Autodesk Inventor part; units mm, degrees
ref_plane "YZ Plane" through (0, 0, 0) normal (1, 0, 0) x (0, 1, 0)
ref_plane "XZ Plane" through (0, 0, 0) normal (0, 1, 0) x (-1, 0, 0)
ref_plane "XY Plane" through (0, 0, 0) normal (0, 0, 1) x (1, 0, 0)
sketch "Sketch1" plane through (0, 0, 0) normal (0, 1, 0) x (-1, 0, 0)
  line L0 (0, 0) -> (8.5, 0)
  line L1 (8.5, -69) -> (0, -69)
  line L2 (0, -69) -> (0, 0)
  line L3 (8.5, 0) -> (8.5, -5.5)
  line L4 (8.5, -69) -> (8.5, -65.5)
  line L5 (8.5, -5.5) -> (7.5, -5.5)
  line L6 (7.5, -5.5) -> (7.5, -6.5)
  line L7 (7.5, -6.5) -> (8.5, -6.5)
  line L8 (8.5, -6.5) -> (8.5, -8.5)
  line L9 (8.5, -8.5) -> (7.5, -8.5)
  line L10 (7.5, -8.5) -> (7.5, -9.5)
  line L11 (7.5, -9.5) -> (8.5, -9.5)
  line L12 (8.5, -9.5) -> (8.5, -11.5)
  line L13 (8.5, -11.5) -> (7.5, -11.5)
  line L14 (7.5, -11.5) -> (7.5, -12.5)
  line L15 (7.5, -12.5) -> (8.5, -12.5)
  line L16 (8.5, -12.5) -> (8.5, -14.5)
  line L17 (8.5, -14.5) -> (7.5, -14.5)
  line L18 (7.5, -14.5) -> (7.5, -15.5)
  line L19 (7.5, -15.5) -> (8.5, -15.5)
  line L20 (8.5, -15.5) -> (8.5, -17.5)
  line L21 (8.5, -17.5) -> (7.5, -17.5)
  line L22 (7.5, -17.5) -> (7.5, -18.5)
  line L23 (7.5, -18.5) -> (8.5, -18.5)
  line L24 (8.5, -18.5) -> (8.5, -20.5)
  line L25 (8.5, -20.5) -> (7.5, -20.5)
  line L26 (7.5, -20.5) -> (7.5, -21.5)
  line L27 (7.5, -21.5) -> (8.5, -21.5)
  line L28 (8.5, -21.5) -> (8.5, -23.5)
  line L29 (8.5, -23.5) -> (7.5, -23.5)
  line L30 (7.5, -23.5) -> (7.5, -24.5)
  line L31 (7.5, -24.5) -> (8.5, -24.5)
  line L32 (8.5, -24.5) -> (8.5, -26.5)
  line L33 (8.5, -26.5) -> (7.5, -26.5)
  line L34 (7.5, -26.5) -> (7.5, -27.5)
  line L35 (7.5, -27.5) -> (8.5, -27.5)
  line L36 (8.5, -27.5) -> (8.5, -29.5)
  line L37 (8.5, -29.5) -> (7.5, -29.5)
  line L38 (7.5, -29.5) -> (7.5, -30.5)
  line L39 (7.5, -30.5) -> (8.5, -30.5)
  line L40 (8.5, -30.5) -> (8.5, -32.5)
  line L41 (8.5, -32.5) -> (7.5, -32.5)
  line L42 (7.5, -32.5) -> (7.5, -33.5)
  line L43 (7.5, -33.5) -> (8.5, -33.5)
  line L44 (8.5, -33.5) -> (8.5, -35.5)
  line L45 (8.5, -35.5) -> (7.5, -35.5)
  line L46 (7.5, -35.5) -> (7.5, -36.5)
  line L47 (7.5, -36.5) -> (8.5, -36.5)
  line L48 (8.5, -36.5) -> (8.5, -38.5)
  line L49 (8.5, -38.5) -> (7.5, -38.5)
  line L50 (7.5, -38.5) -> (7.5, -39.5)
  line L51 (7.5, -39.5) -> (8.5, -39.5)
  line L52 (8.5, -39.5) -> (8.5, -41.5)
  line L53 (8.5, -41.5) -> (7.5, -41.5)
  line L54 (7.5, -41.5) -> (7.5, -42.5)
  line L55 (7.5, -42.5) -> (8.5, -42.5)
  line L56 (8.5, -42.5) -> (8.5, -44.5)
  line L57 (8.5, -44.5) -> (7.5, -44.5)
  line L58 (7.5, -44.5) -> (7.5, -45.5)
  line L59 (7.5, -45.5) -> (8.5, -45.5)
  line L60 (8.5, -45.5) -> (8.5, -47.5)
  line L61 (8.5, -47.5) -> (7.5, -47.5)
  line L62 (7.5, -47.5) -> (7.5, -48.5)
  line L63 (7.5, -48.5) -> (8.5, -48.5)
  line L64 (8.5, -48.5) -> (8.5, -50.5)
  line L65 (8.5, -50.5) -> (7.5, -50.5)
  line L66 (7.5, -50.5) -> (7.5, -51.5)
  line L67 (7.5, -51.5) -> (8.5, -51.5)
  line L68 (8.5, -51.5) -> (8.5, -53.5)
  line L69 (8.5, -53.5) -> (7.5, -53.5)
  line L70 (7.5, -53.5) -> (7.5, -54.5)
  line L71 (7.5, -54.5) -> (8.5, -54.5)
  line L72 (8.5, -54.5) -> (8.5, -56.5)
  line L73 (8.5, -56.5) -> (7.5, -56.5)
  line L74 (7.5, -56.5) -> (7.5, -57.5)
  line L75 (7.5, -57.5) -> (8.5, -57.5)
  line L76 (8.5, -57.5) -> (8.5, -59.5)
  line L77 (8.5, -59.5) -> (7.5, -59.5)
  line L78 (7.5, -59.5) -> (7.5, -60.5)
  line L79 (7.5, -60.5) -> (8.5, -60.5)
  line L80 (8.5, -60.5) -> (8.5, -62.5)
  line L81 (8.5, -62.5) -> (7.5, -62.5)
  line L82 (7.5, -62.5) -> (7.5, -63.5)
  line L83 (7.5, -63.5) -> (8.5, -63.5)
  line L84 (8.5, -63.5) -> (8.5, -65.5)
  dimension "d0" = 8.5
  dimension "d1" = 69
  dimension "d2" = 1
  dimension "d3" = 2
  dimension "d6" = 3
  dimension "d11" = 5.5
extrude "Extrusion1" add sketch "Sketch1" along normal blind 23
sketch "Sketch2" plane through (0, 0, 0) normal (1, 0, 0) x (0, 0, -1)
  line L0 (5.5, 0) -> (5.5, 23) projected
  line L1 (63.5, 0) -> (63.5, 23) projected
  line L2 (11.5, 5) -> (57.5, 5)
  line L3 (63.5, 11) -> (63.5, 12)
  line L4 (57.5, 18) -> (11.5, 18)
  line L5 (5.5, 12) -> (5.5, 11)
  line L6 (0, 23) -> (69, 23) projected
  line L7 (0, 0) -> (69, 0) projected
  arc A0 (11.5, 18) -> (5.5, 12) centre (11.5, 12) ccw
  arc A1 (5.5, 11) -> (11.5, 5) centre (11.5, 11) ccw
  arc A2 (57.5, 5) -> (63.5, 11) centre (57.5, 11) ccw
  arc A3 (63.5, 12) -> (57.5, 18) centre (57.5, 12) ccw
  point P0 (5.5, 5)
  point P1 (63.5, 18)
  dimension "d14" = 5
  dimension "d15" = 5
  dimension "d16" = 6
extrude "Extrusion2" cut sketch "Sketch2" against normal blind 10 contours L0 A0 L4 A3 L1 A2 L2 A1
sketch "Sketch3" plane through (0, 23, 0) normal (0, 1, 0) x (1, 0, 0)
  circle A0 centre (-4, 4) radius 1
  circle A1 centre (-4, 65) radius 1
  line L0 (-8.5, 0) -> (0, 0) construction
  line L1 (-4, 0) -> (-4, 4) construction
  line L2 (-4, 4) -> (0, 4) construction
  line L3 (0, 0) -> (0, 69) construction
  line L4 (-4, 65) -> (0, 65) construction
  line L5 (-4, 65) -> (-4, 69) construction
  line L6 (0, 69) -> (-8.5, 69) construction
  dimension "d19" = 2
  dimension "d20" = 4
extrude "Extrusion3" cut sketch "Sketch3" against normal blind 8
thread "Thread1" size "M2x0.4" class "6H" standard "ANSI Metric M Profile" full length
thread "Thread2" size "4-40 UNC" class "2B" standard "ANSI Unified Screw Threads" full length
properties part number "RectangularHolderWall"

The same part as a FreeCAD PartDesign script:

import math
import FreeCAD as App
import Part
import Sketcher
Q = App.Units.Quantity

doc = App.newDocument("Part")
params = doc.addObject("Spreadsheet::Sheet", "Params")
for row, (alias, value) in enumerate([
    ("sketch1_width", "1 mm"),
    ("sketch1_height", "69 mm"),
    ("sketch1_height2", "2 mm"),
    ("sketch1_width2", "8.5 mm"),
    ("pad1_length", "23 mm"),
    ("sketch2_radius", "6 mm"),
    ("sketch2_width", "1 mm"),
    ("sketch2_height", "46 mm"),
    ("pocket1_length", "10 mm"),
    ("sketch3_diameter", "2 mm"),
    ("pocket2_length", "8 mm"),
], start=1):
    params.set(f"A{row}", alias)
    params.set(f"B{row}", "=" + value)
    params.setAlias(f"B{row}", alias)

body = doc.addObject("PartDesign::Body", "Body")

sketch1 = doc.addObject("Sketcher::SketchObject", "Sketch")
body.addObject(sketch1)
sketch1.AttachmentSupport = (doc.XZ_Plane, [""])
sketch1.MapMode = "FlatFace"
sketch1.addGeometry([
    Part.LineSegment(App.Vector(-8.5, 0, 0), App.Vector(0, 0, 0)),
    Part.LineSegment(App.Vector(0, 0, 0), App.Vector(0, -69, 0)),
    Part.LineSegment(App.Vector(0, -69, 0), App.Vector(-8.5, -69, 0)),
    Part.LineSegment(App.Vector(-8.5, -69, 0), App.Vector(-8.5, -63.5, 0)),
    Part.LineSegment(App.Vector(-8.5, -63.5, 0), App.Vector(-7.5, -63.5, 0)),
    Part.LineSegment(App.Vector(-7.5, -63.5, 0), App.Vector(-7.5, -62.5, 0)),
    Part.LineSegment(App.Vector(-7.5, -62.5, 0), App.Vector(-8.5, -62.5, 0)),
    Part.LineSegment(App.Vector(-8.5, -62.5, 0), App.Vector(-8.5, -60.5, 0)),
    Part.LineSegment(App.Vector(-8.5, -60.5, 0), App.Vector(-7.5, -60.5, 0)),
    Part.LineSegment(App.Vector(-7.5, -60.5, 0), App.Vector(-7.5, -59.5, 0)),
    Part.LineSegment(App.Vector(-7.5, -59.5, 0), App.Vector(-8.5, -59.5, 0)),
    Part.LineSegment(App.Vector(-8.5, -59.5, 0), App.Vector(-8.5, -57.5, 0)),
    Part.LineSegment(App.Vector(-8.5, -57.5, 0), App.Vector(-7.5, -57.5, 0)),
    Part.LineSegment(App.Vector(-7.5, -57.5, 0), App.Vector(-7.5, -56.5, 0)),
    Part.LineSegment(App.Vector(-7.5, -56.5, 0), App.Vector(-8.5, -56.5, 0)),
    Part.LineSegment(App.Vector(-8.5, -56.5, 0), App.Vector(-8.5, -54.5, 0)),
    Part.LineSegment(App.Vector(-8.5, -54.5, 0), App.Vector(-7.5, -54.5, 0)),
    Part.LineSegment(App.Vector(-7.5, -54.5, 0), App.Vector(-7.5, -53.5, 0)),
    Part.LineSegment(App.Vector(-7.5, -53.5, 0), App.Vector(-8.5, -53.5, 0)),
    Part.LineSegment(App.Vector(-8.5, -53.5, 0), App.Vector(-8.5, -51.5, 0)),
    Part.LineSegment(App.Vector(-8.5, -51.5, 0), App.Vector(-7.5, -51.5, 0)),
    Part.LineSegment(App.Vector(-7.5, -51.5, 0), App.Vector(-7.5, -50.5, 0)),
    Part.LineSegment(App.Vector(-7.5, -50.5, 0), App.Vector(-8.5, -50.5, 0)),
    Part.LineSegment(App.Vector(-8.5, -50.5, 0), App.Vector(-8.5, -48.5, 0)),
    Part.LineSegment(App.Vector(-8.5, -48.5, 0), App.Vector(-7.5, -48.5, 0)),
    Part.LineSegment(App.Vector(-7.5, -48.5, 0), App.Vector(-7.5, -47.5, 0)),
    Part.LineSegment(App.Vector(-7.5, -47.5, 0), App.Vector(-8.5, -47.5, 0)),
    Part.LineSegment(App.Vector(-8.5, -47.5, 0), App.Vector(-8.5, -45.5, 0)),
    Part.LineSegment(App.Vector(-8.5, -45.5, 0), App.Vector(-7.5, -45.5, 0)),
    Part.LineSegment(App.Vector(-7.5, -45.5, 0), App.Vector(-7.5, -44.5, 0)),
    Part.LineSegment(App.Vector(-7.5, -44.5, 0), App.Vector(-8.5, -44.5, 0)),
    Part.LineSegment(App.Vector(-8.5, -44.5, 0), App.Vector(-8.5, -42.5, 0)),
    Part.LineSegment(App.Vector(-8.5, -42.5, 0), App.Vector(-7.5, -42.5, 0)),
    Part.LineSegment(App.Vector(-7.5, -42.5, 0), App.Vector(-7.5, -41.5, 0)),
    Part.LineSegment(App.Vector(-7.5, -41.5, 0), App.Vector(-8.5, -41.5, 0)),
    Part.LineSegment(App.Vector(-8.5, -41.5, 0), App.Vector(-8.5, -39.5, 0)),
    Part.LineSegment(App.Vector(-8.5, -39.5, 0), App.Vector(-7.5, -39.5, 0)),
    Part.LineSegment(App.Vector(-7.5, -39.5, 0), App.Vector(-7.5, -38.5, 0)),
    Part.LineSegment(App.Vector(-7.5, -38.5, 0), App.Vector(-8.5, -38.5, 0)),
    Part.LineSegment(App.Vector(-8.5, -38.5, 0), App.Vector(-8.5, -36.5, 0)),
    Part.LineSegment(App.Vector(-8.5, -36.5, 0), App.Vector(-7.5, -36.5, 0)),
    Part.LineSegment(App.Vector(-7.5, -36.5, 0), App.Vector(-7.5, -35.5, 0)),
    Part.LineSegment(App.Vector(-7.5, -35.5, 0), App.Vector(-8.5, -35.5, 0)),
    Part.LineSegment(App.Vector(-8.5, -35.5, 0), App.Vector(-8.5, -33.5, 0)),
    Part.LineSegment(App.Vector(-8.5, -33.5, 0), App.Vector(-7.5, -33.5, 0)),
    Part.LineSegment(App.Vector(-7.5, -33.5, 0), App.Vector(-7.5, -32.5, 0)),
    Part.LineSegment(App.Vector(-7.5, -32.5, 0), App.Vector(-8.5, -32.5, 0)),
    Part.LineSegment(App.Vector(-8.5, -32.5, 0), App.Vector(-8.5, -30.5, 0)),
    Part.LineSegment(App.Vector(-8.5, -30.5, 0), App.Vector(-7.5, -30.5, 0)),
    Part.LineSegment(App.Vector(-7.5, -30.5, 0), App.Vector(-7.5, -29.5, 0)),
    Part.LineSegment(App.Vector(-7.5, -29.5, 0), App.Vector(-8.5, -29.5, 0)),
    Part.LineSegment(App.Vector(-8.5, -29.5, 0), App.Vector(-8.5, -27.5, 0)),
    Part.LineSegment(App.Vector(-8.5, -27.5, 0), App.Vector(-7.5, -27.5, 0)),
    Part.LineSegment(App.Vector(-7.5, -27.5, 0), App.Vector(-7.5, -26.5, 0)),
    Part.LineSegment(App.Vector(-7.5, -26.5, 0), App.Vector(-8.5, -26.5, 0)),
    Part.LineSegment(App.Vector(-8.5, -26.5, 0), App.Vector(-8.5, -24.5, 0)),
    Part.LineSegment(App.Vector(-8.5, -24.5, 0), App.Vector(-7.5, -24.5, 0)),
    Part.LineSegment(App.Vector(-7.5, -24.5, 0), App.Vector(-7.5, -23.5, 0)),
    Part.LineSegment(App.Vector(-7.5, -23.5, 0), App.Vector(-8.5, -23.5, 0)),
    Part.LineSegment(App.Vector(-8.5, -23.5, 0), App.Vector(-8.5, -21.5, 0)),
    Part.LineSegment(App.Vector(-8.5, -21.5, 0), App.Vector(-7.5, -21.5, 0)),
    Part.LineSegment(App.Vector(-7.5, -21.5, 0), App.Vector(-7.5, -20.5, 0)),
    Part.LineSegment(App.Vector(-7.5, -20.5, 0), App.Vector(-8.5, -20.5, 0)),
    Part.LineSegment(App.Vector(-8.5, -20.5, 0), App.Vector(-8.5, -18.5, 0)),
    Part.LineSegment(App.Vector(-8.5, -18.5, 0), App.Vector(-7.5, -18.5, 0)),
    Part.LineSegment(App.Vector(-7.5, -18.5, 0), App.Vector(-7.5, -17.5, 0)),
    Part.LineSegment(App.Vector(-7.5, -17.5, 0), App.Vector(-8.5, -17.5, 0)),
    Part.LineSegment(App.Vector(-8.5, -17.5, 0), App.Vector(-8.5, -15.5, 0)),
    Part.LineSegment(App.Vector(-8.5, -15.5, 0), App.Vector(-7.5, -15.5, 0)),
    Part.LineSegment(App.Vector(-7.5, -15.5, 0), App.Vector(-7.5, -14.5, 0)),
    Part.LineSegment(App.Vector(-7.5, -14.5, 0), App.Vector(-8.5, -14.5, 0)),
    Part.LineSegment(App.Vector(-8.5, -14.5, 0), App.Vector(-8.5, -12.5, 0)),
    Part.LineSegment(App.Vector(-8.5, -12.5, 0), App.Vector(-7.5, -12.5, 0)),
    Part.LineSegment(App.Vector(-7.5, -12.5, 0), App.Vector(-7.5, -11.5, 0)),
    Part.LineSegment(App.Vector(-7.5, -11.5, 0), App.Vector(-8.5, -11.5, 0)),
    Part.LineSegment(App.Vector(-8.5, -11.5, 0), App.Vector(-8.5, -9.5, 0)),
    Part.LineSegment(App.Vector(-8.5, -9.5, 0), App.Vector(-7.5, -9.5, 0)),
    Part.LineSegment(App.Vector(-7.5, -9.5, 0), App.Vector(-7.5, -8.5, 0)),
    Part.LineSegment(App.Vector(-7.5, -8.5, 0), App.Vector(-8.5, -8.5, 0)),
    Part.LineSegment(App.Vector(-8.5, -8.5, 0), App.Vector(-8.5, -6.5, 0)),
    Part.LineSegment(App.Vector(-8.5, -6.5, 0), App.Vector(-7.5, -6.5, 0)),
    Part.LineSegment(App.Vector(-7.5, -6.5, 0), App.Vector(-7.5, -5.5, 0)),
    Part.LineSegment(App.Vector(-7.5, -5.5, 0), App.Vector(-8.5, -5.5, 0)),
    Part.LineSegment(App.Vector(-8.5, -5.5, 0), App.Vector(-8.5, 0, 0)),
], False)
sketch1.addConstraint([
    Sketcher.Constraint("Coincident", 0, 2, 1, 1),
    Sketcher.Constraint("Coincident", 1, 2, 2, 1),
    Sketcher.Constraint("Coincident", 2, 2, 3, 1),
    Sketcher.Constraint("Coincident", 3, 2, 4, 1),
    Sketcher.Constraint("Coincident", 4, 2, 5, 1),
    Sketcher.Constraint("Coincident", 5, 2, 6, 1),
    Sketcher.Constraint("Coincident", 6, 2, 7, 1),
    Sketcher.Constraint("Coincident", 7, 2, 8, 1),
    Sketcher.Constraint("Coincident", 8, 2, 9, 1),
    Sketcher.Constraint("Coincident", 9, 2, 10, 1),
    Sketcher.Constraint("Coincident", 10, 2, 11, 1),
    Sketcher.Constraint("Coincident", 11, 2, 12, 1),
    Sketcher.Constraint("Coincident", 12, 2, 13, 1),
    Sketcher.Constraint("Coincident", 13, 2, 14, 1),
    Sketcher.Constraint("Coincident", 14, 2, 15, 1),
    Sketcher.Constraint("Coincident", 15, 2, 16, 1),
    Sketcher.Constraint("Coincident", 16, 2, 17, 1),
    Sketcher.Constraint("Coincident", 17, 2, 18, 1),
    Sketcher.Constraint("Coincident", 18, 2, 19, 1),
    Sketcher.Constraint("Coincident", 19, 2, 20, 1),
    Sketcher.Constraint("Coincident", 20, 2, 21, 1),
    Sketcher.Constraint("Coincident", 21, 2, 22, 1),
    Sketcher.Constraint("Coincident", 22, 2, 23, 1),
    Sketcher.Constraint("Coincident", 23, 2, 24, 1),
    Sketcher.Constraint("Coincident", 24, 2, 25, 1),
    Sketcher.Constraint("Coincident", 25, 2, 26, 1),
    Sketcher.Constraint("Coincident", 26, 2, 27, 1),
    Sketcher.Constraint("Coincident", 27, 2, 28, 1),
    Sketcher.Constraint("Coincident", 28, 2, 29, 1),
    Sketcher.Constraint("Coincident", 29, 2, 30, 1),
    Sketcher.Constraint("Coincident", 30, 2, 31, 1),
    Sketcher.Constraint("Coincident", 31, 2, 32, 1),
    Sketcher.Constraint("Coincident", 32, 2, 33, 1),
    Sketcher.Constraint("Coincident", 33, 2, 34, 1),
    Sketcher.Constraint("Coincident", 34, 2, 35, 1),
    Sketcher.Constraint("Coincident", 35, 2, 36, 1),
    Sketcher.Constraint("Coincident", 36, 2, 37, 1),
    Sketcher.Constraint("Coincident", 37, 2, 38, 1),
    Sketcher.Constraint("Coincident", 38, 2, 39, 1),
    Sketcher.Constraint("Coincident", 39, 2, 40, 1),
    Sketcher.Constraint("Coincident", 40, 2, 41, 1),
    Sketcher.Constraint("Coincident", 41, 2, 42, 1),
    Sketcher.Constraint("Coincident", 42, 2, 43, 1),
    Sketcher.Constraint("Coincident", 43, 2, 44, 1),
    Sketcher.Constraint("Coincident", 44, 2, 45, 1),
    Sketcher.Constraint("Coincident", 45, 2, 46, 1),
    Sketcher.Constraint("Coincident", 46, 2, 47, 1),
    Sketcher.Constraint("Coincident", 47, 2, 48, 1),
    Sketcher.Constraint("Coincident", 48, 2, 49, 1),
    Sketcher.Constraint("Coincident", 49, 2, 50, 1),
    Sketcher.Constraint("Coincident", 50, 2, 51, 1),
    Sketcher.Constraint("Coincident", 51, 2, 52, 1),
    Sketcher.Constraint("Coincident", 52, 2, 53, 1),
    Sketcher.Constraint("Coincident", 53, 2, 54, 1),
    Sketcher.Constraint("Coincident", 54, 2, 55, 1),
    Sketcher.Constraint("Coincident", 55, 2, 56, 1),
    Sketcher.Constraint("Coincident", 56, 2, 57, 1),
    Sketcher.Constraint("Coincident", 57, 2, 58, 1),
    Sketcher.Constraint("Coincident", 58, 2, 59, 1),
    Sketcher.Constraint("Coincident", 59, 2, 60, 1),
    Sketcher.Constraint("Coincident", 60, 2, 61, 1),
    Sketcher.Constraint("Coincident", 61, 2, 62, 1),
    Sketcher.Constraint("Coincident", 62, 2, 63, 1),
    Sketcher.Constraint("Coincident", 63, 2, 64, 1),
    Sketcher.Constraint("Coincident", 64, 2, 65, 1),
    Sketcher.Constraint("Coincident", 65, 2, 66, 1),
    Sketcher.Constraint("Coincident", 66, 2, 67, 1),
    Sketcher.Constraint("Coincident", 67, 2, 68, 1),
    Sketcher.Constraint("Coincident", 68, 2, 69, 1),
    Sketcher.Constraint("Coincident", 69, 2, 70, 1),
    Sketcher.Constraint("Coincident", 70, 2, 71, 1),
    Sketcher.Constraint("Coincident", 71, 2, 72, 1),
    Sketcher.Constraint("Coincident", 72, 2, 73, 1),
    Sketcher.Constraint("Coincident", 73, 2, 74, 1),
    Sketcher.Constraint("Coincident", 74, 2, 75, 1),
    Sketcher.Constraint("Coincident", 75, 2, 76, 1),
    Sketcher.Constraint("Coincident", 76, 2, 77, 1),
    Sketcher.Constraint("Coincident", 77, 2, 78, 1),
    Sketcher.Constraint("Coincident", 78, 2, 79, 1),
    Sketcher.Constraint("Coincident", 79, 2, 80, 1),
    Sketcher.Constraint("Coincident", 80, 2, 81, 1),
    Sketcher.Constraint("Coincident", 81, 2, 82, 1),
    Sketcher.Constraint("Coincident", 82, 2, 83, 1),
    Sketcher.Constraint("Coincident", 83, 2, 0, 1),
    Sketcher.Constraint("Horizontal", 0),
    Sketcher.Constraint("Vertical", 1),
    Sketcher.Constraint("Horizontal", 2),
    Sketcher.Constraint("Vertical", 3),
    Sketcher.Constraint("Horizontal", 4),
    Sketcher.Constraint("Vertical", 5),
    Sketcher.Constraint("Horizontal", 6),
    Sketcher.Constraint("Vertical", 7),
    Sketcher.Constraint("Horizontal", 8),
    Sketcher.Constraint("Vertical", 9),
    Sketcher.Constraint("Horizontal", 10),
    Sketcher.Constraint("Vertical", 11),
    Sketcher.Constraint("Horizontal", 12),
    Sketcher.Constraint("Vertical", 13),
    Sketcher.Constraint("Horizontal", 14),
    Sketcher.Constraint("Vertical", 15),
    Sketcher.Constraint("Horizontal", 16),
    Sketcher.Constraint("Vertical", 17),
    Sketcher.Constraint("Horizontal", 18),
    Sketcher.Constraint("Vertical", 19),
    Sketcher.Constraint("Horizontal", 20),
    Sketcher.Constraint("Vertical", 21),
    Sketcher.Constraint("Horizontal", 22),
    Sketcher.Constraint("Vertical", 23),
    Sketcher.Constraint("Horizontal", 24),
    Sketcher.Constraint("Vertical", 25),
    Sketcher.Constraint("Horizontal", 26),
    Sketcher.Constraint("Vertical", 27),
    Sketcher.Constraint("Horizontal", 28),
    Sketcher.Constraint("Vertical", 29),
    Sketcher.Constraint("Horizontal", 30),
    Sketcher.Constraint("Vertical", 31),
    Sketcher.Constraint("Horizontal", 32),
    Sketcher.Constraint("Vertical", 33),
    Sketcher.Constraint("Horizontal", 34),
    Sketcher.Constraint("Vertical", 35),
    Sketcher.Constraint("Horizontal", 36),
    Sketcher.Constraint("Vertical", 37),
    Sketcher.Constraint("Horizontal", 38),
    Sketcher.Constraint("Vertical", 39),
    Sketcher.Constraint("Horizontal", 40),
    Sketcher.Constraint("Vertical", 41),
    Sketcher.Constraint("Horizontal", 42),
    Sketcher.Constraint("Vertical", 43),
    Sketcher.Constraint("Horizontal", 44),
    Sketcher.Constraint("Vertical", 45),
    Sketcher.Constraint("Horizontal", 46),
    Sketcher.Constraint("Vertical", 47),
    Sketcher.Constraint("Horizontal", 48),
    Sketcher.Constraint("Vertical", 49),
    Sketcher.Constraint("Horizontal", 50),
    Sketcher.Constraint("Vertical", 51),
    Sketcher.Constraint("Horizontal", 52),
    Sketcher.Constraint("Vertical", 53),
    Sketcher.Constraint("Horizontal", 54),
    Sketcher.Constraint("Vertical", 55),
    Sketcher.Constraint("Horizontal", 56),
    Sketcher.Constraint("Vertical", 57),
    Sketcher.Constraint("Horizontal", 58),
    Sketcher.Constraint("Vertical", 59),
    Sketcher.Constraint("Horizontal", 60),
    Sketcher.Constraint("Vertical", 61),
    Sketcher.Constraint("Horizontal", 62),
    Sketcher.Constraint("Vertical", 63),
    Sketcher.Constraint("Horizontal", 64),
    Sketcher.Constraint("Vertical", 65),
    Sketcher.Constraint("Horizontal", 66),
    Sketcher.Constraint("Vertical", 67),
    Sketcher.Constraint("Horizontal", 68),
    Sketcher.Constraint("Vertical", 69),
    Sketcher.Constraint("Horizontal", 70),
    Sketcher.Constraint("Vertical", 71),
    Sketcher.Constraint("Horizontal", 72),
    Sketcher.Constraint("Vertical", 73),
    Sketcher.Constraint("Horizontal", 74),
    Sketcher.Constraint("Vertical", 75),
    Sketcher.Constraint("Horizontal", 76),
    Sketcher.Constraint("Vertical", 77),
    Sketcher.Constraint("Horizontal", 78),
    Sketcher.Constraint("Vertical", 79),
    Sketcher.Constraint("Horizontal", 80),
    Sketcher.Constraint("Vertical", 81),
    Sketcher.Constraint("Horizontal", 82),
    Sketcher.Constraint("Vertical", 83),
    Sketcher.Constraint("Coincident", 0, 2, -1, 1),
    Sketcher.Constraint("Vertical", 3, 2, 6, 2),
    Sketcher.Constraint("Vertical", 5, 2, 8, 2),
    Sketcher.Constraint("Vertical", 7, 2, 10, 2),
    Sketcher.Constraint("Vertical", 9, 2, 12, 2),
    Sketcher.Constraint("Vertical", 11, 2, 14, 2),
    Sketcher.Constraint("Vertical", 13, 2, 16, 2),
    Sketcher.Constraint("Vertical", 15, 2, 18, 2),
    Sketcher.Constraint("Vertical", 17, 2, 20, 2),
    Sketcher.Constraint("Vertical", 19, 2, 22, 2),
    Sketcher.Constraint("Vertical", 21, 2, 24, 2),
    Sketcher.Constraint("Vertical", 23, 2, 26, 2),
    Sketcher.Constraint("Vertical", 25, 2, 28, 2),
    Sketcher.Constraint("Vertical", 27, 2, 30, 2),
    Sketcher.Constraint("Vertical", 29, 2, 32, 2),
    Sketcher.Constraint("Vertical", 31, 2, 34, 2),
    Sketcher.Constraint("Vertical", 33, 2, 36, 2),
    Sketcher.Constraint("Vertical", 35, 2, 38, 2),
    Sketcher.Constraint("Vertical", 37, 2, 40, 2),
    Sketcher.Constraint("Vertical", 39, 2, 42, 2),
    Sketcher.Constraint("Vertical", 41, 2, 44, 2),
    Sketcher.Constraint("Vertical", 43, 2, 46, 2),
    Sketcher.Constraint("Vertical", 45, 2, 48, 2),
    Sketcher.Constraint("Vertical", 47, 2, 50, 2),
    Sketcher.Constraint("Vertical", 49, 2, 52, 2),
    Sketcher.Constraint("Vertical", 51, 2, 54, 2),
    Sketcher.Constraint("Vertical", 53, 2, 56, 2),
    Sketcher.Constraint("Vertical", 55, 2, 58, 2),
    Sketcher.Constraint("Vertical", 57, 2, 60, 2),
    Sketcher.Constraint("Vertical", 59, 2, 62, 2),
    Sketcher.Constraint("Vertical", 61, 2, 64, 2),
    Sketcher.Constraint("Vertical", 63, 2, 66, 2),
    Sketcher.Constraint("Vertical", 65, 2, 68, 2),
    Sketcher.Constraint("Vertical", 67, 2, 70, 2),
    Sketcher.Constraint("Vertical", 69, 2, 72, 2),
    Sketcher.Constraint("Vertical", 71, 2, 74, 2),
    Sketcher.Constraint("Vertical", 73, 2, 76, 2),
    Sketcher.Constraint("Vertical", 75, 2, 78, 2),
    Sketcher.Constraint("Vertical", 77, 2, 80, 2),
    Sketcher.Constraint("Vertical", 79, 2, 82, 2),
    Sketcher.Constraint("Equal", 82, 5),
    Sketcher.Constraint("Equal", 5, 9),
    Sketcher.Constraint("Equal", 7, 11),
    Sketcher.Constraint("Equal", 9, 13),
    Sketcher.Constraint("Equal", 11, 15),
    Sketcher.Constraint("Equal", 13, 17),
    Sketcher.Constraint("Equal", 15, 19),
    Sketcher.Constraint("Equal", 17, 21),
    Sketcher.Constraint("Equal", 19, 23),
    Sketcher.Constraint("Equal", 21, 25),
    Sketcher.Constraint("Equal", 23, 27),
    Sketcher.Constraint("Equal", 25, 29),
    Sketcher.Constraint("Equal", 27, 31),
    Sketcher.Constraint("Equal", 29, 33),
    Sketcher.Constraint("Equal", 31, 35),
    Sketcher.Constraint("Equal", 33, 37),
    Sketcher.Constraint("Equal", 35, 39),
    Sketcher.Constraint("Equal", 37, 41),
    Sketcher.Constraint("Equal", 39, 43),
    Sketcher.Constraint("Equal", 41, 45),
    Sketcher.Constraint("Equal", 43, 47),
    Sketcher.Constraint("Equal", 45, 49),
    Sketcher.Constraint("Equal", 47, 51),
    Sketcher.Constraint("Equal", 49, 53),
    Sketcher.Constraint("Equal", 51, 55),
    Sketcher.Constraint("Equal", 53, 57),
    Sketcher.Constraint("Equal", 55, 59),
    Sketcher.Constraint("Equal", 57, 61),
    Sketcher.Constraint("Equal", 59, 63),
    Sketcher.Constraint("Equal", 61, 65),
    Sketcher.Constraint("Equal", 63, 67),
    Sketcher.Constraint("Equal", 65, 69),
    Sketcher.Constraint("Equal", 67, 71),
    Sketcher.Constraint("Equal", 69, 73),
    Sketcher.Constraint("Equal", 71, 75),
    Sketcher.Constraint("Equal", 73, 77),
    Sketcher.Constraint("Equal", 75, 79),
    Sketcher.Constraint("Equal", 77, 81),
    Sketcher.Constraint("Equal", 3, 83),
    Sketcher.Constraint("DistanceX", 4, 1, 4, 2, Q("1 mm")),
    Sketcher.Constraint("DistanceY", 1, 2, 1, 1, Q("69 mm")),
    Sketcher.Constraint("DistanceY", 7, 1, 7, 2, Q("2 mm")),
    Sketcher.Constraint("DistanceX", 0, 1, 0, 2, Q("8.5 mm")),
])
sketch1.setExpression("Constraints[247]", "Params.sketch1_width")
sketch1.setExpression("Constraints[248]", "Params.sketch1_height")
sketch1.setExpression("Constraints[249]", "Params.sketch1_height2")
sketch1.setExpression("Constraints[250]", "Params.sketch1_width2")
pad1 = doc.addObject("PartDesign::Pad", "Pad")
body.addObject(pad1)
pad1.Profile = sketch1
pad1.setExpression("Length", "Params.pad1_length")
pad1.Reversed = True

sketch2 = doc.addObject("Sketcher::SketchObject", "Sketch001")
body.addObject(sketch2)
sketch2.AttachmentSupport = (doc.YZ_Plane, [""])
sketch2.MapMode = "FlatFace"
sketch2.addGeometry([
    Part.LineSegment(App.Vector(12, -5.5, 0), App.Vector(11, -5.5, 0)),
    Part.ArcOfCircle(Part.Circle(App.Vector(11, -11.5, 0), App.Vector(0, 0, 1), 6), math.radians(90), math.radians(180)),
    Part.LineSegment(App.Vector(5, -11.5, 0), App.Vector(5, -57.5, 0)),
    Part.ArcOfCircle(Part.Circle(App.Vector(11, -57.5, 0), App.Vector(0, 0, 1), 6), math.radians(180), math.radians(270)),
    Part.LineSegment(App.Vector(11, -63.5, 0), App.Vector(12, -63.5, 0)),
    Part.ArcOfCircle(Part.Circle(App.Vector(12, -57.5, 0), App.Vector(0, 0, 1), 6), math.radians(-90), math.radians(0)),
    Part.LineSegment(App.Vector(18, -57.5, 0), App.Vector(18, -11.5, 0)),
    Part.ArcOfCircle(Part.Circle(App.Vector(12, -11.5, 0), App.Vector(0, 0, 1), 6), math.radians(0), math.radians(90)),
], False)
sketch2.addConstraint([
    Sketcher.Constraint("Tangent", 0, 2, 1, 1),
    Sketcher.Constraint("Tangent", 1, 2, 2, 1),
    Sketcher.Constraint("Tangent", 2, 2, 3, 1),
    Sketcher.Constraint("Tangent", 3, 2, 4, 1),
    Sketcher.Constraint("Tangent", 4, 2, 5, 1),
    Sketcher.Constraint("Tangent", 5, 2, 6, 1),
    Sketcher.Constraint("Tangent", 6, 2, 7, 1),
    Sketcher.Constraint("Tangent", 7, 2, 0, 1),
    Sketcher.Constraint("Horizontal", 0),
    Sketcher.Constraint("Vertical", 2),
    Sketcher.Constraint("Horizontal", 4),
    Sketcher.Constraint("Vertical", 6),
    Sketcher.Constraint("Equal", 1, 3),
    Sketcher.Constraint("Equal", 3, 5),
    Sketcher.Constraint("Equal", 5, 7),
    Sketcher.Constraint("Radius", 1, Q("6 mm")),
    Sketcher.Constraint("DistanceX", -1, 1, 1, 2, Q("5 mm")),
    Sketcher.Constraint("DistanceX", 0, 2, 0, 1, Q("1 mm")),
    Sketcher.Constraint("DistanceY", 2, 2, 2, 1, Q("46 mm")),
    Sketcher.Constraint("DistanceY", 1, 3, -1, 1, Q("11.5 mm")),
])
sketch2.setExpression("Constraints[15]", "Params.sketch2_radius")
sketch2.setExpression("Constraints[17]", "Params.sketch2_width")
sketch2.setExpression("Constraints[18]", "Params.sketch2_height")
pocket1 = doc.addObject("PartDesign::Pocket", "Pocket")
body.addObject(pocket1)
pocket1.Profile = sketch2
pocket1.setExpression("Length", "Params.pocket1_length")

sketch3 = doc.addObject("Sketcher::SketchObject", "Sketch002")
body.addObject(sketch3)
sketch3.AttachmentSupport = (doc.XZ_Plane, [""])
sketch3.MapMode = "FlatFace"
sketch3.AttachmentOffset = App.Placement(App.Vector(0, 0, -23), App.Rotation())
sketch3.addGeometry([
    Part.Circle(App.Vector(-4, -4, 0), App.Vector(0, 0, 1), 1),
    Part.Circle(App.Vector(-4, -65, 0), App.Vector(0, 0, 1), 1),
], False)
sketch3.addConstraint([
    Sketcher.Constraint("Equal", 0, 1),
    Sketcher.Constraint("Vertical", 0, 3, 1, 3),
    Sketcher.Constraint("Diameter", 0, Q("2 mm")),
    Sketcher.Constraint("DistanceX", 0, 3, -1, 1, Q("4 mm")),
    Sketcher.Constraint("DistanceY", 0, 3, -1, 1, Q("4 mm")),
    Sketcher.Constraint("DistanceY", 1, 3, -1, 1, Q("65 mm")),
])
sketch3.setExpression("Constraints[2]", "Params.sketch3_diameter")
pocket2 = doc.addObject("PartDesign::Pocket", "Pocket001")
body.addObject(pocket2)
pocket2.Profile = sketch3
pocket2.setExpression("Length", "Params.pocket2_length")
pocket2.Reversed = True

doc.recompute()
